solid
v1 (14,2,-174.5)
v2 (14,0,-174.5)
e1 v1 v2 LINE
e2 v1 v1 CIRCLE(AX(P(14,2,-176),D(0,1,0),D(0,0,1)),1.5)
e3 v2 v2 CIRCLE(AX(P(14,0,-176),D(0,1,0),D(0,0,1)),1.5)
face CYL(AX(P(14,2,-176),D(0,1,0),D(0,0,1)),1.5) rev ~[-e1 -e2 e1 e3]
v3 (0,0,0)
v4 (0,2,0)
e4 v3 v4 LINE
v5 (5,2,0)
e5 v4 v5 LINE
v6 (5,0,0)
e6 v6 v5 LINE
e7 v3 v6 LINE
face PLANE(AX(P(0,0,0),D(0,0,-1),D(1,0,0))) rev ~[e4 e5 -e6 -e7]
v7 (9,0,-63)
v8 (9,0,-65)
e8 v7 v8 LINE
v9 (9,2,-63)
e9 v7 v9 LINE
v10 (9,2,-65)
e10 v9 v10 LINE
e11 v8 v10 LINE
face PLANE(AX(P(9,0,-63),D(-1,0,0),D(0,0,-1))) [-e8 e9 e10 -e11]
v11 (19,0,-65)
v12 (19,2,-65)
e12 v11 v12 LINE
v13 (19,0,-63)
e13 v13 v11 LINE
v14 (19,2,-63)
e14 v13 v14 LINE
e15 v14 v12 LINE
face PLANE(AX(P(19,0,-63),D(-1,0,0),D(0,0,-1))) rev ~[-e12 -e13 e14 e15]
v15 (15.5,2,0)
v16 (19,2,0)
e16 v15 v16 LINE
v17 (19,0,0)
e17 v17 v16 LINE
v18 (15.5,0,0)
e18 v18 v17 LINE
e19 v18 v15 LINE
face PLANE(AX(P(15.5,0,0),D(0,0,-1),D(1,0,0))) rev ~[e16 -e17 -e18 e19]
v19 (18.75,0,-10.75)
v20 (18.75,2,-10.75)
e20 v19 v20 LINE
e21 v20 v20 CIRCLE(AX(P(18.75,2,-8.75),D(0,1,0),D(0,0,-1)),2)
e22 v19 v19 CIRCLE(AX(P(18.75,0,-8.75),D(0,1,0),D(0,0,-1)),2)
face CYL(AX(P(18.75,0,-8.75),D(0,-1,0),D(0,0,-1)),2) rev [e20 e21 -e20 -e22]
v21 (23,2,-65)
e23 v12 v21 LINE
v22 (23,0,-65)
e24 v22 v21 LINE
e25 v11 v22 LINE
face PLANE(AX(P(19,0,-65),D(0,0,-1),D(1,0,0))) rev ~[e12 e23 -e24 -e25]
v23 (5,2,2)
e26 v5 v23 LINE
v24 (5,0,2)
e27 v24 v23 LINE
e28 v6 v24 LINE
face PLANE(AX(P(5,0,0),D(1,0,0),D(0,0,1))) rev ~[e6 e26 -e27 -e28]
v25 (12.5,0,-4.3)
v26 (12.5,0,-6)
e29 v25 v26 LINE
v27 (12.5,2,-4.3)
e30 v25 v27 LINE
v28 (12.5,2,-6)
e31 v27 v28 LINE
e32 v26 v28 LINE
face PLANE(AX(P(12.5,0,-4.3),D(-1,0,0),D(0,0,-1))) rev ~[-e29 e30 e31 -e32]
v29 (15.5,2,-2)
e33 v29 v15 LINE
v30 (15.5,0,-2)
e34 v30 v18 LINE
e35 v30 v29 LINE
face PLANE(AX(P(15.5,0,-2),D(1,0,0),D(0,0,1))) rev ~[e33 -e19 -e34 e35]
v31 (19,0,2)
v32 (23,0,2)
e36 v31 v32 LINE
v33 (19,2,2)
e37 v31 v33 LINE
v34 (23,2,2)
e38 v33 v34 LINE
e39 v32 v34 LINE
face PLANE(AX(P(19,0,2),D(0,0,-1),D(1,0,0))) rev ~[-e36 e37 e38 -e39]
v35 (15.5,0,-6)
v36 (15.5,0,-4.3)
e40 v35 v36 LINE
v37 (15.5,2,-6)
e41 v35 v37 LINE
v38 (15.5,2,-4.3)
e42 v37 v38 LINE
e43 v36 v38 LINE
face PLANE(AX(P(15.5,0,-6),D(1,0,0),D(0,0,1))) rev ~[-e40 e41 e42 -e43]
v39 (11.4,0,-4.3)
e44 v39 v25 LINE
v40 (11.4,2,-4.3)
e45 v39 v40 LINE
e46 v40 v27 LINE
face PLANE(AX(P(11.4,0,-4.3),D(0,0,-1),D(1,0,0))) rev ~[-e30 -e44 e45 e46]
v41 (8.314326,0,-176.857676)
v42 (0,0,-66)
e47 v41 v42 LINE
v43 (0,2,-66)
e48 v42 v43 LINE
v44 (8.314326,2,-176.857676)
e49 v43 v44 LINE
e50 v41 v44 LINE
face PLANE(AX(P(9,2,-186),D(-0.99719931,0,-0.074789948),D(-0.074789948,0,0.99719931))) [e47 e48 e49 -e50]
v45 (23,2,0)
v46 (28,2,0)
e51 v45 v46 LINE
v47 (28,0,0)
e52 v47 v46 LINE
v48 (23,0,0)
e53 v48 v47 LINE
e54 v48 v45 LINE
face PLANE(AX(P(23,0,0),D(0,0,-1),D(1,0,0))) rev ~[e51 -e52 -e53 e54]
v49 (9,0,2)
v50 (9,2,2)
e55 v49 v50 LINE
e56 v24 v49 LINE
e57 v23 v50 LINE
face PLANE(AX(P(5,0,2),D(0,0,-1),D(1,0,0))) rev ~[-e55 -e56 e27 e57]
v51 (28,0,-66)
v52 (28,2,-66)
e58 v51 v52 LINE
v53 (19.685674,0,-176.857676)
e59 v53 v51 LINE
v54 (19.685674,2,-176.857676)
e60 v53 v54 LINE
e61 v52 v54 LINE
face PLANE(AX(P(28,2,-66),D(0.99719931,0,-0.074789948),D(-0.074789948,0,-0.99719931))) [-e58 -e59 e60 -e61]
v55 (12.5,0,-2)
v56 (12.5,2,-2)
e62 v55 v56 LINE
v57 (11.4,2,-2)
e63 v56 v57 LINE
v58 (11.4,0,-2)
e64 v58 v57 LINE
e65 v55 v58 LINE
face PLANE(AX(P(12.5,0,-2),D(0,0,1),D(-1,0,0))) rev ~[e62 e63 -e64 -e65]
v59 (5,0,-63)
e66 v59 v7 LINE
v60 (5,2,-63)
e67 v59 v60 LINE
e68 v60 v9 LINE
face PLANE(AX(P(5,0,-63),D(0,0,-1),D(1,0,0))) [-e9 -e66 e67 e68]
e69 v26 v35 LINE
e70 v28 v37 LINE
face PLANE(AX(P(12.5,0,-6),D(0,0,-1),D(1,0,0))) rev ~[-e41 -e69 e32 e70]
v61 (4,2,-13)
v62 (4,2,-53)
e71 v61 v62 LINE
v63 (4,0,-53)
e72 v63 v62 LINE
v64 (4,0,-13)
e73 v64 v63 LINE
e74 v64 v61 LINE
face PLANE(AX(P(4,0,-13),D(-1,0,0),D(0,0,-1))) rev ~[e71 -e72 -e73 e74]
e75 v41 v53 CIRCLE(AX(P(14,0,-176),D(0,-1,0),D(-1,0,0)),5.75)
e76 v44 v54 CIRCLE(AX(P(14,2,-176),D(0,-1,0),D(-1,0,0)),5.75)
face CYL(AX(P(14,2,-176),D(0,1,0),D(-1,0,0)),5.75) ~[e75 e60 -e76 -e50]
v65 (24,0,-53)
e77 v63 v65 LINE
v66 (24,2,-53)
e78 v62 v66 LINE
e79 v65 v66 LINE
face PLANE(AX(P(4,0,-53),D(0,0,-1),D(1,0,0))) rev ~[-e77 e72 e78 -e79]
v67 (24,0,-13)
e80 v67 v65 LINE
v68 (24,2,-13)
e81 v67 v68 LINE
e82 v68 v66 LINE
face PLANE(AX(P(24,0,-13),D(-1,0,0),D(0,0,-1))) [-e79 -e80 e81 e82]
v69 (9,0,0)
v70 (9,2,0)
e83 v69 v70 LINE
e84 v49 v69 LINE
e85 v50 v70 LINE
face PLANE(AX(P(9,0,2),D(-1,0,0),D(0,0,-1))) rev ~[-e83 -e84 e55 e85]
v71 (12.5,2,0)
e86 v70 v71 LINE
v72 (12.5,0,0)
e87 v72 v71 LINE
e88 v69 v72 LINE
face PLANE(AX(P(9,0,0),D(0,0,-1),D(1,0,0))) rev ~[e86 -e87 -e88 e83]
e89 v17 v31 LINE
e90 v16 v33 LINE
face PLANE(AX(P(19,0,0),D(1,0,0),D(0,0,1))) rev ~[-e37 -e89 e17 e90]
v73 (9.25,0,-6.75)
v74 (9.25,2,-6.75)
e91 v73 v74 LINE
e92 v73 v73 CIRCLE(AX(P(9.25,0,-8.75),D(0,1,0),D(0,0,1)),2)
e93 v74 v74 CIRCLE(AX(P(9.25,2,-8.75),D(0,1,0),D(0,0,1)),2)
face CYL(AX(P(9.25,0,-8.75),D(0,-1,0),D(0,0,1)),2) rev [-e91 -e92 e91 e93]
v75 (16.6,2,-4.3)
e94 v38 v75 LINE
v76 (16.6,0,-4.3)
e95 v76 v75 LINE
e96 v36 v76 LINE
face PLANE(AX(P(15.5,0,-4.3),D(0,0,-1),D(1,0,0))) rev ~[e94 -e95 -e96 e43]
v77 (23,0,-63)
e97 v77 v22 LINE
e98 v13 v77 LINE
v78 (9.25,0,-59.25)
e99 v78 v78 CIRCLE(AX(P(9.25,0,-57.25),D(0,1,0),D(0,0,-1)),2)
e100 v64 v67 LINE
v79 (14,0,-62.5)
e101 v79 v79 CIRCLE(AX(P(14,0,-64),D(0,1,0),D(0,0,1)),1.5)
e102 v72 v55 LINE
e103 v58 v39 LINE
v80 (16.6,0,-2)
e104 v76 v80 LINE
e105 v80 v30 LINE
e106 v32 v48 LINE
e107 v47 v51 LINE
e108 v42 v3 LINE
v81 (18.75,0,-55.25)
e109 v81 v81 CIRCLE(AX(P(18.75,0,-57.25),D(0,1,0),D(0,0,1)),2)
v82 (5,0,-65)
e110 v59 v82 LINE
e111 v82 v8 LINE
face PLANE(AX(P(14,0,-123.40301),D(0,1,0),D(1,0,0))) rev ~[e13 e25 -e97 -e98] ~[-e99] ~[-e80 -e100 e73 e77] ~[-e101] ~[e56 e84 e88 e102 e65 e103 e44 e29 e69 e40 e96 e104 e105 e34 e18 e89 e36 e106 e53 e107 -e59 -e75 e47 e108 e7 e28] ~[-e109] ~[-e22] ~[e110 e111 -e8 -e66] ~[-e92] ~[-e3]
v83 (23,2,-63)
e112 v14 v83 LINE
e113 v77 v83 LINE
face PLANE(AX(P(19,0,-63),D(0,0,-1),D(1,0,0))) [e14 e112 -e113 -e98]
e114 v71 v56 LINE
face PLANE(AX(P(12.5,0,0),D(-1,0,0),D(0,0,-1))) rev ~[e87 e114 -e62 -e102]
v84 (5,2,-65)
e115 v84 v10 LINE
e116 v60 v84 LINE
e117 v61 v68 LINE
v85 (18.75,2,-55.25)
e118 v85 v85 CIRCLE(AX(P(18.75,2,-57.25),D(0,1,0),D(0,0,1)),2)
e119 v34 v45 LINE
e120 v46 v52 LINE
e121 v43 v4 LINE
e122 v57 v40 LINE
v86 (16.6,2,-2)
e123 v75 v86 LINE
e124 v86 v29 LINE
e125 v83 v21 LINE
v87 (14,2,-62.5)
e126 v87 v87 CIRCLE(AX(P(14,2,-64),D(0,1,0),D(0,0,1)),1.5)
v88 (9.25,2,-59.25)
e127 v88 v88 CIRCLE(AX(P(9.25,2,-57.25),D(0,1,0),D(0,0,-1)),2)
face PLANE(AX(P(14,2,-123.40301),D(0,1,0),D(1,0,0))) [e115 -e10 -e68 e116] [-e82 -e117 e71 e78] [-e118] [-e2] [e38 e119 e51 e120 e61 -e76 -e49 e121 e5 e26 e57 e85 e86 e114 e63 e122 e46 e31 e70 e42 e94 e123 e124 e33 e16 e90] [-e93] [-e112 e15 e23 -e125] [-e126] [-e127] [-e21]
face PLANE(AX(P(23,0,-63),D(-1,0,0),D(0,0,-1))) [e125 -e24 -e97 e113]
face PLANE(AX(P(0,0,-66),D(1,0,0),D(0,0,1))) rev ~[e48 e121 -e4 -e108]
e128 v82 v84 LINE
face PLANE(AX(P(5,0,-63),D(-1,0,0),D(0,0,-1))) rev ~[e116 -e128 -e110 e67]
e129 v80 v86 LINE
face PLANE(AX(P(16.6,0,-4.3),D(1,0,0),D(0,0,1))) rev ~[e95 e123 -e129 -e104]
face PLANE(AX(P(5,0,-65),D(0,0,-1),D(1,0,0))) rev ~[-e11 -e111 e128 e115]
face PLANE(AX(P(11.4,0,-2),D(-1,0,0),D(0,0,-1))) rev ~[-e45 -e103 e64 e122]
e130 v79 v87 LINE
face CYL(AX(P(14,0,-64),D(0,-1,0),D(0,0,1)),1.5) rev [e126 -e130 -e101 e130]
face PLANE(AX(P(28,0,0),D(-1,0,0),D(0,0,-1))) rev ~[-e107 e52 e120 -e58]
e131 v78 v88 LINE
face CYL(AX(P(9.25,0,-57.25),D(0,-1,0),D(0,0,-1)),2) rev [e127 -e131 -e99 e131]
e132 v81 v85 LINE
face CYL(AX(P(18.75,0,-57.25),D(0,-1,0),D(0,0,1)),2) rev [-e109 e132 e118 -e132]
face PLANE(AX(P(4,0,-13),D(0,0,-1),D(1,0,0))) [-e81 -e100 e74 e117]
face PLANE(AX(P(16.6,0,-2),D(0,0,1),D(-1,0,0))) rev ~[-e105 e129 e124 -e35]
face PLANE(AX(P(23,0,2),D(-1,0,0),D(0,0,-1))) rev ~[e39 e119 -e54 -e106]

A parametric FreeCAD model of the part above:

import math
import FreeCAD as App
import Part
import Sketcher
from FreeCAD import Vector

doc = App.newDocument("Part")
params = doc.addObject("Spreadsheet::Sheet", "Params")
for row, (alias, value) in enumerate([
    ("sketch1_diameter", "4 mm"),
    ("sketch1_diameter2", "3 mm"),
    ("sketch1_width", "5 mm"),
    ("sketch1_width2", "4 mm"),
    ("sketch1_width3", "3 mm"),
    ("pad1_length", "2 mm"),
    ("sketch2_radius", "5 mm"),
    ("sketch2_width", "28 mm"),
    ("pad2_length", "2 mm"),
    ("sketch3_diameter", "3 mm"),
    ("sketch3_radius", "5.75 mm"),
    ("pocket1_length", "2 mm"),
], start=1):
    params.set(f"A{row}", alias)
    params.set(f"B{row}", "=" + value)
    params.setAlias(f"B{row}", alias)

body = doc.addObject("PartDesign::Body", "Body")

# Sketch on XZ plane
sketch1 = doc.addObject("Sketcher::SketchObject", "Sketch")
body.addObject(sketch1)
sketch1.AttachmentSupport = (doc.XZ_Plane, [""])
sketch1.MapMode = "FlatFace"
sketch1.addGeometry([
    Part.LineSegment(Vector(0, 0, 0), Vector(5, 0, 0)),  # 0
    Part.LineSegment(Vector(5, 0, 0), Vector(5, 2, 0)),  # 1
    Part.LineSegment(Vector(5, 2, 0), Vector(9, 2, 0)),  # 2
    Part.LineSegment(Vector(9, 2, 0), Vector(9, 0, 0)),  # 3
    Part.LineSegment(Vector(9, 0, 0), Vector(12.5, 0, 0)),  # 4
    Part.LineSegment(Vector(12.5, 0, 0), Vector(12.5, -2, 0)),  # 5
    Part.LineSegment(Vector(12.5, -2, 0), Vector(11.4, -2, 0)),  # 6
    Part.LineSegment(Vector(11.4, -2, 0), Vector(11.4, -4.3, 0)),  # 7
    Part.LineSegment(Vector(11.4, -4.3, 0), Vector(12.5, -4.3, 0)),  # 8
    Part.LineSegment(Vector(12.5, -4.3, 0), Vector(12.5, -6, 0)),  # 9
    Part.LineSegment(Vector(12.5, -6, 0), Vector(15.5, -6, 0)),  # 10
    Part.LineSegment(Vector(15.5, -6, 0), Vector(15.5, -4.3, 0)),  # 11
    Part.LineSegment(Vector(15.5, -4.3, 0), Vector(16.6, -4.3, 0)),  # 12
    Part.LineSegment(Vector(16.6, -4.3, 0), Vector(16.6, -2, 0)),  # 13
    Part.LineSegment(Vector(16.6, -2, 0), Vector(15.5, -2, 0)),  # 14
    Part.LineSegment(Vector(15.5, -2, 0), Vector(15.5, 0, 0)),  # 15
    Part.LineSegment(Vector(15.5, 0, 0), Vector(19, 0, 0)),  # 16
    Part.LineSegment(Vector(19, 0, 0), Vector(19, 2, 0)),  # 17
    Part.LineSegment(Vector(19, 2, 0), Vector(23, 2, 0)),  # 18
    Part.LineSegment(Vector(23, 2, 0), Vector(23, 0, 0)),  # 19
    Part.LineSegment(Vector(23, 0, 0), Vector(28, 0, 0)),  # 20
    Part.LineSegment(Vector(28, 0, 0), Vector(28, -66, 0)),  # 21
    Part.LineSegment(Vector(28, -66, 0), Vector(0, -66, 0)),  # 22
    Part.LineSegment(Vector(0, -66, 0), Vector(0, 0, 0)),  # 23
    Part.Circle(Vector(9.2, -8.8, 0), Vector(0, 0, 1), 2),  # 24
    Part.Circle(Vector(18.8, -8.8, 0), Vector(0, 0, 1), 2),  # 25
    Part.LineSegment(Vector(24, -13, 0), Vector(4, -13, 0)),  # 26
    Part.LineSegment(Vector(4, -13, 0), Vector(4, -53, 0)),  # 27
    Part.LineSegment(Vector(4, -53, 0), Vector(24, -53, 0)),  # 28
    Part.LineSegment(Vector(24, -53, 0), Vector(24, -13, 0)),  # 29
    Part.LineSegment(Vector(9, -63, 0), Vector(5, -63, 0)),  # 30
    Part.LineSegment(Vector(5, -63, 0), Vector(5, -65, 0)),  # 31
    Part.LineSegment(Vector(5, -65, 0), Vector(9, -65, 0)),  # 32
    Part.LineSegment(Vector(9, -65, 0), Vector(9, -63, 0)),  # 33
    Part.Circle(Vector(9.2, -57.2, 0), Vector(0, 0, 1), 2),  # 34
    Part.Circle(Vector(18.8, -57.2, 0), Vector(0, 0, 1), 2),  # 35
    Part.Circle(Vector(14, -64, 0), Vector(0, 0, 1), 1.5),  # 36
    Part.LineSegment(Vector(23, -63, 0), Vector(19, -63, 0)),  # 37
    Part.LineSegment(Vector(19, -63, 0), Vector(19, -65, 0)),  # 38
    Part.LineSegment(Vector(19, -65, 0), Vector(23, -65, 0)),  # 39
    Part.LineSegment(Vector(23, -65, 0), Vector(23, -63, 0)),  # 40
], False)
sketch1.addConstraint([
    Sketcher.Constraint("Coincident", 0, 2, 1, 1),
    Sketcher.Constraint("Coincident", 1, 2, 2, 1),
    Sketcher.Constraint("Coincident", 2, 2, 3, 1),
    Sketcher.Constraint("Coincident", 3, 2, 4, 1),
    Sketcher.Constraint("Coincident", 4, 2, 5, 1),
    Sketcher.Constraint("Coincident", 5, 2, 6, 1),
    Sketcher.Constraint("Coincident", 6, 2, 7, 1),
    Sketcher.Constraint("Coincident", 7, 2, 8, 1),
    Sketcher.Constraint("Coincident", 8, 2, 9, 1),
    Sketcher.Constraint("Coincident", 9, 2, 10, 1),
    Sketcher.Constraint("Coincident", 10, 2, 11, 1),
    Sketcher.Constraint("Coincident", 11, 2, 12, 1),
    Sketcher.Constraint("Coincident", 12, 2, 13, 1),
    Sketcher.Constraint("Coincident", 13, 2, 14, 1),
    Sketcher.Constraint("Coincident", 14, 2, 15, 1),
    Sketcher.Constraint("Coincident", 15, 2, 16, 1),
    Sketcher.Constraint("Coincident", 16, 2, 17, 1),
    Sketcher.Constraint("Coincident", 17, 2, 18, 1),
    Sketcher.Constraint("Coincident", 18, 2, 19, 1),
    Sketcher.Constraint("Coincident", 19, 2, 20, 1),
    Sketcher.Constraint("Coincident", 20, 2, 21, 1),
    Sketcher.Constraint("Coincident", 21, 2, 22, 1),
    Sketcher.Constraint("Coincident", 22, 2, 23, 1),
    Sketcher.Constraint("Coincident", 23, 2, 0, 1),
    Sketcher.Constraint("Coincident", 26, 2, 27, 1),
    Sketcher.Constraint("Coincident", 27, 2, 28, 1),
    Sketcher.Constraint("Coincident", 28, 2, 29, 1),
    Sketcher.Constraint("Coincident", 29, 2, 26, 1),
    Sketcher.Constraint("Coincident", 30, 2, 31, 1),
    Sketcher.Constraint("Coincident", 31, 2, 32, 1),
    Sketcher.Constraint("Coincident", 32, 2, 33, 1),
    Sketcher.Constraint("Coincident", 33, 2, 30, 1),
    Sketcher.Constraint("Coincident", 37, 2, 38, 1),
    Sketcher.Constraint("Coincident", 38, 2, 39, 1),
    Sketcher.Constraint("Coincident", 39, 2, 40, 1),
    Sketcher.Constraint("Coincident", 40, 2, 37, 1),
    Sketcher.Constraint("Horizontal", 0),
    Sketcher.Constraint("Vertical", 1),
    Sketcher.Constraint("Horizontal", 2),
    Sketcher.Constraint("Vertical", 3),
    Sketcher.Constraint("Horizontal", 4),
    Sketcher.Constraint("Vertical", 5),
    Sketcher.Constraint("Horizontal", 6),
    Sketcher.Constraint("Vertical", 7),
    Sketcher.Constraint("Horizontal", 8),
    Sketcher.Constraint("Vertical", 9),
    Sketcher.Constraint("Horizontal", 10),
    Sketcher.Constraint("Vertical", 11),
    Sketcher.Constraint("Horizontal", 12),
    Sketcher.Constraint("Vertical", 13),
    Sketcher.Constraint("Horizontal", 14),
    Sketcher.Constraint("Vertical", 15),
    Sketcher.Constraint("Horizontal", 16),
    Sketcher.Constraint("Vertical", 17),
    Sketcher.Constraint("Horizontal", 18),
    Sketcher.Constraint("Vertical", 19),
    Sketcher.Constraint("Horizontal", 20),
    Sketcher.Constraint("Vertical", 21),
    Sketcher.Constraint("Horizontal", 22),
    Sketcher.Constraint("Vertical", 23),
    Sketcher.Constraint("Horizontal", 26),
    Sketcher.Constraint("Vertical", 27),
    Sketcher.Constraint("Horizontal", 28),
    Sketcher.Constraint("Vertical", 29),
    Sketcher.Constraint("Horizontal", 30),
    Sketcher.Constraint("Vertical", 31),
    Sketcher.Constraint("Horizontal", 32),
    Sketcher.Constraint("Vertical", 33),
    Sketcher.Constraint("Horizontal", 37),
    Sketcher.Constraint("Vertical", 38),
    Sketcher.Constraint("Horizontal", 39),
    Sketcher.Constraint("Vertical", 40),
    Sketcher.Constraint("Coincident", 23, 2, -1, 1),
    Sketcher.Constraint("Equal", 24, 25),
    Sketcher.Constraint("Equal", 25, 34),
    Sketcher.Constraint("Equal", 34, 35),
    Sketcher.Constraint("PointOnObject", 3, 2, -1),
    Sketcher.Constraint("PointOnObject", 15, 2, -1),
    Sketcher.Constraint("PointOnObject", 19, 2, -1),
    Sketcher.Constraint("Horizontal", 24, 3, 25, 3),
    Sketcher.Constraint("Horizontal", 34, 3, 35, 3),
    Sketcher.Constraint("Horizontal", 8, 2, 11, 2),
    Sketcher.Constraint("Horizontal", 6, 2, 13, 2),
    Sketcher.Constraint("Horizontal", 2, 2, 17, 2),
    Sketcher.Constraint("Horizontal", 33, 2, 37, 2),
    Sketcher.Constraint("Horizontal", 32, 2, 38, 2),
    Sketcher.Constraint("Vertical", 24, 3, 34, 3),
    Sketcher.Constraint("Vertical", 25, 3, 35, 3),
    Sketcher.Constraint("Vertical", 5, 2, 8, 2),
    Sketcher.Constraint("Vertical", 11, 2, 14, 2),
    Sketcher.Constraint("Vertical", 1, 2, 30, 2),
    Sketcher.Constraint("Vertical", 3, 2, 32, 2),
    Sketcher.Constraint("Vertical", 17, 2, 37, 2),
    Sketcher.Constraint("Vertical", 19, 2, 39, 2),
    Sketcher.Constraint("Equal", 8, 12),
    Sketcher.Constraint("Equal", 4, 16),
    Sketcher.Constraint("Equal", 2, 18),
    Sketcher.Constraint("Equal", 0, 20),
    Sketcher.Constraint("Equal", 3, 5),
    Sketcher.Constraint("Equal", 19, 31),
    Sketcher.Constraint("Diameter", 24, 4.0),
    Sketcher.Constraint("Diameter", 36, 3.0),
    Sketcher.Constraint("DistanceX", 0, 1, 0, 2, 5.0),
    Sketcher.Constraint("DistanceX", 2, 1, 2, 2, 4.0),
    Sketcher.Constraint("DistanceX", 10, 1, 10, 2, 3.0),
    Sketcher.Constraint("DistanceX", 22, 2, 22, 1, 28.0),
    Sketcher.Constraint("DistanceX", 26, 2, 26, 1, 20.0),
    Sketcher.Constraint("DistanceY", 1, 1, 1, 2, 2.0),
    Sketcher.Constraint("DistanceY", 21, 2, 21, 1, 66.0),
    Sketcher.Constraint("DistanceY", 27, 2, 27, 1, 40.0),
    Sketcher.Constraint("DistanceX", 6, 2, 6, 1, 1.1),
    Sketcher.Constraint("DistanceY", 7, 2, 7, 1, 2.3),
    Sketcher.Constraint("DistanceY", 9, 2, 9, 1, 1.7),
    Sketcher.Constraint("DistanceX", -1, 1, 36, 3, 14.0),
    Sketcher.Constraint("DistanceY", 36, 3, -1, 1, 64.0),
    Sketcher.Constraint("DistanceX", -1, 1, 26, 2, 4.0),
    Sketcher.Constraint("DistanceY", 26, 2, -1, 1, 13.0),
    Sketcher.Constraint("DistanceY", 30, 2, -1, 1, 63.0),
    Sketcher.Constraint("DistanceX", 24, 3, 25, 3, 9.5),
    Sketcher.Constraint("DistanceY", 34, 3, 24, 3, 48.5),
    Sketcher.Constraint("DistanceX", -1, 1, 24, 3, 9.25),
    Sketcher.Constraint("DistanceY", 24, 3, -1, 1, 8.75),
])
sketch1.setExpression("Constraints[100]", "Params.sketch1_diameter")
sketch1.setExpression("Constraints[101]", "Params.sketch1_diameter2")
sketch1.setExpression("Constraints[102]", "Params.sketch1_width")
sketch1.setExpression("Constraints[103]", "Params.sketch1_width2")
sketch1.setExpression("Constraints[104]", "Params.sketch1_width3")
pad1 = doc.addObject("PartDesign::Pad", "Pad")
body.addObject(pad1)
pad1.Profile = sketch1
pad1.setExpression("Length", "Params.pad1_length")
pad1.Reversed = True

# Sketch on XZ plane
sketch2 = doc.addObject("Sketcher::SketchObject", "Sketch001")
body.addObject(sketch2)
sketch2.AttachmentSupport = (doc.XZ_Plane, [""])
sketch2.MapMode = "FlatFace"
sketch2.AttachmentOffset = App.Placement(Vector(0, 0, -2), App.Rotation())
sketch2.addGeometry([
    Part.LineSegment(Vector(9, -186, 0), Vector(0, -66, 0)),
    Part.LineSegment(Vector(0, -66, 0), Vector(28, -66, 0)),
    Part.LineSegment(Vector(28, -66, 0), Vector(19, -186, 0)),
    Part.ArcOfCircle(Part.Circle(Vector(14, -186, 0), Vector(0, 0, 1), 5), math.radians(180), math.radians(360)),
], False)
sketch2.addConstraint([
    Sketcher.Constraint("Coincident", 0, 2, 1, 1),
    Sketcher.Constraint("Coincident", 1, 2, 2, 1),
    Sketcher.Constraint("Coincident", 2, 2, 3, 2),
    Sketcher.Constraint("Coincident", 3, 1, 0, 1),
    Sketcher.Constraint("Horizontal", 1),
    Sketcher.Constraint("PointOnObject", 0, 2, -2),
    Sketcher.Constraint("Horizontal", 3, 3, 2, 2),
    Sketcher.Constraint("Horizontal", 2, 2, 3, 1),
    Sketcher.Constraint("Equal", 0, 2),
    Sketcher.Constraint("Radius", 3, 5.0),
    Sketcher.Constraint("DistanceX", 1, 1, 1, 2, 28.0),
    Sketcher.Constraint("DistanceY", 3, 3, -1, 1, 186.0),
    Sketcher.Constraint("DistanceY", 0, 2, -1, 1, 66.0),
])
sketch2.setExpression("Constraints[9]", "Params.sketch2_radius")
sketch2.setExpression("Constraints[10]", "Params.sketch2_width")
pad2 = doc.addObject("PartDesign::Pad", "Pad001")
body.addObject(pad2)
pad2.Profile = sketch2
pad2.setExpression("Length", "Params.pad2_length")

# Sketch on XZ plane
sketch3 = doc.addObject("Sketcher::SketchObject", "Sketch002")
body.addObject(sketch3)
sketch3.AttachmentSupport = (doc.XZ_Plane, [""])
sketch3.MapMode = "FlatFace"
sketch3.AttachmentOffset = App.Placement(Vector(0, 0, -2), App.Rotation())
sketch3.addGeometry([
    Part.Circle(Vector(14, -176, 0), Vector(0, 0, 1), 1.5),  # 0
    Part.LineSegment(Vector(1.3, -176, 0), Vector(8.2, -176, 0)),  # 1
    Part.ArcOfCircle(Part.Circle(Vector(14, -176, 0), Vector(0, 0, 1), 5.8), math.radians(180), math.radians(360)),  # 2
    Part.LineSegment(Vector(19.8, -176, 0), Vector(26.7, -176, 0)),  # 3
    Part.LineSegment(Vector(26.7, -176, 0), Vector(26.7, -198.8, 0)),  # 4
    Part.LineSegment(Vector(26.7, -198.8, 0), Vector(1.3, -198.8, 0)),  # 5
    Part.LineSegment(Vector(1.3, -198.8, 0), Vector(1.3, -176, 0)),  # 6
], False)
sketch3.addConstraint([
    Sketcher.Constraint("Coincident", 1, 2, 2, 1),
    Sketcher.Constraint("Coincident", 2, 2, 3, 1),
    Sketcher.Constraint("Coincident", 3, 2, 4, 1),
    Sketcher.Constraint("Coincident", 4, 2, 5, 1),
    Sketcher.Constraint("Coincident", 5, 2, 6, 1),
    Sketcher.Constraint("Coincident", 6, 2, 1, 1),
    Sketcher.Constraint("Horizontal", 1),
    Sketcher.Constraint("Horizontal", 3),
    Sketcher.Constraint("Vertical", 4),
    Sketcher.Constraint("Horizontal", 5),
    Sketcher.Constraint("Vertical", 6),
    Sketcher.Constraint("Coincident", 2, 3, 0, 3),
    Sketcher.Constraint("Horizontal", 2, 3, 1, 2),
    Sketcher.Constraint("Horizontal", 1, 2, 2, 2),
    Sketcher.Constraint("Diameter", 0, 3.0),
    Sketcher.Constraint("Radius", 2, 5.75),
    Sketcher.Constraint("DistanceX", -1, 1, 0, 3, 14.0),
    Sketcher.Constraint("DistanceY", 0, 3, -1, 1, 176.0),
    Sketcher.Constraint("DistanceX", 5, 2, 5, 1, 25.35436),
    Sketcher.Constraint("DistanceY", 4, 2, 4, 1, 22.806069),
    Sketcher.Constraint("DistanceX", 1, 1, 1, 2, 6.913753),
])
sketch3.setExpression("Constraints[14]", "Params.sketch3_diameter")
sketch3.setExpression("Constraints[15]", "Params.sketch3_radius")
pocket1 = doc.addObject("PartDesign::Pocket", "Pocket")
body.addObject(pocket1)
pocket1.Profile = sketch3
pocket1.setExpression("Length", "Params.pocket1_length")
pocket1.Reversed = True

doc.recompute()
